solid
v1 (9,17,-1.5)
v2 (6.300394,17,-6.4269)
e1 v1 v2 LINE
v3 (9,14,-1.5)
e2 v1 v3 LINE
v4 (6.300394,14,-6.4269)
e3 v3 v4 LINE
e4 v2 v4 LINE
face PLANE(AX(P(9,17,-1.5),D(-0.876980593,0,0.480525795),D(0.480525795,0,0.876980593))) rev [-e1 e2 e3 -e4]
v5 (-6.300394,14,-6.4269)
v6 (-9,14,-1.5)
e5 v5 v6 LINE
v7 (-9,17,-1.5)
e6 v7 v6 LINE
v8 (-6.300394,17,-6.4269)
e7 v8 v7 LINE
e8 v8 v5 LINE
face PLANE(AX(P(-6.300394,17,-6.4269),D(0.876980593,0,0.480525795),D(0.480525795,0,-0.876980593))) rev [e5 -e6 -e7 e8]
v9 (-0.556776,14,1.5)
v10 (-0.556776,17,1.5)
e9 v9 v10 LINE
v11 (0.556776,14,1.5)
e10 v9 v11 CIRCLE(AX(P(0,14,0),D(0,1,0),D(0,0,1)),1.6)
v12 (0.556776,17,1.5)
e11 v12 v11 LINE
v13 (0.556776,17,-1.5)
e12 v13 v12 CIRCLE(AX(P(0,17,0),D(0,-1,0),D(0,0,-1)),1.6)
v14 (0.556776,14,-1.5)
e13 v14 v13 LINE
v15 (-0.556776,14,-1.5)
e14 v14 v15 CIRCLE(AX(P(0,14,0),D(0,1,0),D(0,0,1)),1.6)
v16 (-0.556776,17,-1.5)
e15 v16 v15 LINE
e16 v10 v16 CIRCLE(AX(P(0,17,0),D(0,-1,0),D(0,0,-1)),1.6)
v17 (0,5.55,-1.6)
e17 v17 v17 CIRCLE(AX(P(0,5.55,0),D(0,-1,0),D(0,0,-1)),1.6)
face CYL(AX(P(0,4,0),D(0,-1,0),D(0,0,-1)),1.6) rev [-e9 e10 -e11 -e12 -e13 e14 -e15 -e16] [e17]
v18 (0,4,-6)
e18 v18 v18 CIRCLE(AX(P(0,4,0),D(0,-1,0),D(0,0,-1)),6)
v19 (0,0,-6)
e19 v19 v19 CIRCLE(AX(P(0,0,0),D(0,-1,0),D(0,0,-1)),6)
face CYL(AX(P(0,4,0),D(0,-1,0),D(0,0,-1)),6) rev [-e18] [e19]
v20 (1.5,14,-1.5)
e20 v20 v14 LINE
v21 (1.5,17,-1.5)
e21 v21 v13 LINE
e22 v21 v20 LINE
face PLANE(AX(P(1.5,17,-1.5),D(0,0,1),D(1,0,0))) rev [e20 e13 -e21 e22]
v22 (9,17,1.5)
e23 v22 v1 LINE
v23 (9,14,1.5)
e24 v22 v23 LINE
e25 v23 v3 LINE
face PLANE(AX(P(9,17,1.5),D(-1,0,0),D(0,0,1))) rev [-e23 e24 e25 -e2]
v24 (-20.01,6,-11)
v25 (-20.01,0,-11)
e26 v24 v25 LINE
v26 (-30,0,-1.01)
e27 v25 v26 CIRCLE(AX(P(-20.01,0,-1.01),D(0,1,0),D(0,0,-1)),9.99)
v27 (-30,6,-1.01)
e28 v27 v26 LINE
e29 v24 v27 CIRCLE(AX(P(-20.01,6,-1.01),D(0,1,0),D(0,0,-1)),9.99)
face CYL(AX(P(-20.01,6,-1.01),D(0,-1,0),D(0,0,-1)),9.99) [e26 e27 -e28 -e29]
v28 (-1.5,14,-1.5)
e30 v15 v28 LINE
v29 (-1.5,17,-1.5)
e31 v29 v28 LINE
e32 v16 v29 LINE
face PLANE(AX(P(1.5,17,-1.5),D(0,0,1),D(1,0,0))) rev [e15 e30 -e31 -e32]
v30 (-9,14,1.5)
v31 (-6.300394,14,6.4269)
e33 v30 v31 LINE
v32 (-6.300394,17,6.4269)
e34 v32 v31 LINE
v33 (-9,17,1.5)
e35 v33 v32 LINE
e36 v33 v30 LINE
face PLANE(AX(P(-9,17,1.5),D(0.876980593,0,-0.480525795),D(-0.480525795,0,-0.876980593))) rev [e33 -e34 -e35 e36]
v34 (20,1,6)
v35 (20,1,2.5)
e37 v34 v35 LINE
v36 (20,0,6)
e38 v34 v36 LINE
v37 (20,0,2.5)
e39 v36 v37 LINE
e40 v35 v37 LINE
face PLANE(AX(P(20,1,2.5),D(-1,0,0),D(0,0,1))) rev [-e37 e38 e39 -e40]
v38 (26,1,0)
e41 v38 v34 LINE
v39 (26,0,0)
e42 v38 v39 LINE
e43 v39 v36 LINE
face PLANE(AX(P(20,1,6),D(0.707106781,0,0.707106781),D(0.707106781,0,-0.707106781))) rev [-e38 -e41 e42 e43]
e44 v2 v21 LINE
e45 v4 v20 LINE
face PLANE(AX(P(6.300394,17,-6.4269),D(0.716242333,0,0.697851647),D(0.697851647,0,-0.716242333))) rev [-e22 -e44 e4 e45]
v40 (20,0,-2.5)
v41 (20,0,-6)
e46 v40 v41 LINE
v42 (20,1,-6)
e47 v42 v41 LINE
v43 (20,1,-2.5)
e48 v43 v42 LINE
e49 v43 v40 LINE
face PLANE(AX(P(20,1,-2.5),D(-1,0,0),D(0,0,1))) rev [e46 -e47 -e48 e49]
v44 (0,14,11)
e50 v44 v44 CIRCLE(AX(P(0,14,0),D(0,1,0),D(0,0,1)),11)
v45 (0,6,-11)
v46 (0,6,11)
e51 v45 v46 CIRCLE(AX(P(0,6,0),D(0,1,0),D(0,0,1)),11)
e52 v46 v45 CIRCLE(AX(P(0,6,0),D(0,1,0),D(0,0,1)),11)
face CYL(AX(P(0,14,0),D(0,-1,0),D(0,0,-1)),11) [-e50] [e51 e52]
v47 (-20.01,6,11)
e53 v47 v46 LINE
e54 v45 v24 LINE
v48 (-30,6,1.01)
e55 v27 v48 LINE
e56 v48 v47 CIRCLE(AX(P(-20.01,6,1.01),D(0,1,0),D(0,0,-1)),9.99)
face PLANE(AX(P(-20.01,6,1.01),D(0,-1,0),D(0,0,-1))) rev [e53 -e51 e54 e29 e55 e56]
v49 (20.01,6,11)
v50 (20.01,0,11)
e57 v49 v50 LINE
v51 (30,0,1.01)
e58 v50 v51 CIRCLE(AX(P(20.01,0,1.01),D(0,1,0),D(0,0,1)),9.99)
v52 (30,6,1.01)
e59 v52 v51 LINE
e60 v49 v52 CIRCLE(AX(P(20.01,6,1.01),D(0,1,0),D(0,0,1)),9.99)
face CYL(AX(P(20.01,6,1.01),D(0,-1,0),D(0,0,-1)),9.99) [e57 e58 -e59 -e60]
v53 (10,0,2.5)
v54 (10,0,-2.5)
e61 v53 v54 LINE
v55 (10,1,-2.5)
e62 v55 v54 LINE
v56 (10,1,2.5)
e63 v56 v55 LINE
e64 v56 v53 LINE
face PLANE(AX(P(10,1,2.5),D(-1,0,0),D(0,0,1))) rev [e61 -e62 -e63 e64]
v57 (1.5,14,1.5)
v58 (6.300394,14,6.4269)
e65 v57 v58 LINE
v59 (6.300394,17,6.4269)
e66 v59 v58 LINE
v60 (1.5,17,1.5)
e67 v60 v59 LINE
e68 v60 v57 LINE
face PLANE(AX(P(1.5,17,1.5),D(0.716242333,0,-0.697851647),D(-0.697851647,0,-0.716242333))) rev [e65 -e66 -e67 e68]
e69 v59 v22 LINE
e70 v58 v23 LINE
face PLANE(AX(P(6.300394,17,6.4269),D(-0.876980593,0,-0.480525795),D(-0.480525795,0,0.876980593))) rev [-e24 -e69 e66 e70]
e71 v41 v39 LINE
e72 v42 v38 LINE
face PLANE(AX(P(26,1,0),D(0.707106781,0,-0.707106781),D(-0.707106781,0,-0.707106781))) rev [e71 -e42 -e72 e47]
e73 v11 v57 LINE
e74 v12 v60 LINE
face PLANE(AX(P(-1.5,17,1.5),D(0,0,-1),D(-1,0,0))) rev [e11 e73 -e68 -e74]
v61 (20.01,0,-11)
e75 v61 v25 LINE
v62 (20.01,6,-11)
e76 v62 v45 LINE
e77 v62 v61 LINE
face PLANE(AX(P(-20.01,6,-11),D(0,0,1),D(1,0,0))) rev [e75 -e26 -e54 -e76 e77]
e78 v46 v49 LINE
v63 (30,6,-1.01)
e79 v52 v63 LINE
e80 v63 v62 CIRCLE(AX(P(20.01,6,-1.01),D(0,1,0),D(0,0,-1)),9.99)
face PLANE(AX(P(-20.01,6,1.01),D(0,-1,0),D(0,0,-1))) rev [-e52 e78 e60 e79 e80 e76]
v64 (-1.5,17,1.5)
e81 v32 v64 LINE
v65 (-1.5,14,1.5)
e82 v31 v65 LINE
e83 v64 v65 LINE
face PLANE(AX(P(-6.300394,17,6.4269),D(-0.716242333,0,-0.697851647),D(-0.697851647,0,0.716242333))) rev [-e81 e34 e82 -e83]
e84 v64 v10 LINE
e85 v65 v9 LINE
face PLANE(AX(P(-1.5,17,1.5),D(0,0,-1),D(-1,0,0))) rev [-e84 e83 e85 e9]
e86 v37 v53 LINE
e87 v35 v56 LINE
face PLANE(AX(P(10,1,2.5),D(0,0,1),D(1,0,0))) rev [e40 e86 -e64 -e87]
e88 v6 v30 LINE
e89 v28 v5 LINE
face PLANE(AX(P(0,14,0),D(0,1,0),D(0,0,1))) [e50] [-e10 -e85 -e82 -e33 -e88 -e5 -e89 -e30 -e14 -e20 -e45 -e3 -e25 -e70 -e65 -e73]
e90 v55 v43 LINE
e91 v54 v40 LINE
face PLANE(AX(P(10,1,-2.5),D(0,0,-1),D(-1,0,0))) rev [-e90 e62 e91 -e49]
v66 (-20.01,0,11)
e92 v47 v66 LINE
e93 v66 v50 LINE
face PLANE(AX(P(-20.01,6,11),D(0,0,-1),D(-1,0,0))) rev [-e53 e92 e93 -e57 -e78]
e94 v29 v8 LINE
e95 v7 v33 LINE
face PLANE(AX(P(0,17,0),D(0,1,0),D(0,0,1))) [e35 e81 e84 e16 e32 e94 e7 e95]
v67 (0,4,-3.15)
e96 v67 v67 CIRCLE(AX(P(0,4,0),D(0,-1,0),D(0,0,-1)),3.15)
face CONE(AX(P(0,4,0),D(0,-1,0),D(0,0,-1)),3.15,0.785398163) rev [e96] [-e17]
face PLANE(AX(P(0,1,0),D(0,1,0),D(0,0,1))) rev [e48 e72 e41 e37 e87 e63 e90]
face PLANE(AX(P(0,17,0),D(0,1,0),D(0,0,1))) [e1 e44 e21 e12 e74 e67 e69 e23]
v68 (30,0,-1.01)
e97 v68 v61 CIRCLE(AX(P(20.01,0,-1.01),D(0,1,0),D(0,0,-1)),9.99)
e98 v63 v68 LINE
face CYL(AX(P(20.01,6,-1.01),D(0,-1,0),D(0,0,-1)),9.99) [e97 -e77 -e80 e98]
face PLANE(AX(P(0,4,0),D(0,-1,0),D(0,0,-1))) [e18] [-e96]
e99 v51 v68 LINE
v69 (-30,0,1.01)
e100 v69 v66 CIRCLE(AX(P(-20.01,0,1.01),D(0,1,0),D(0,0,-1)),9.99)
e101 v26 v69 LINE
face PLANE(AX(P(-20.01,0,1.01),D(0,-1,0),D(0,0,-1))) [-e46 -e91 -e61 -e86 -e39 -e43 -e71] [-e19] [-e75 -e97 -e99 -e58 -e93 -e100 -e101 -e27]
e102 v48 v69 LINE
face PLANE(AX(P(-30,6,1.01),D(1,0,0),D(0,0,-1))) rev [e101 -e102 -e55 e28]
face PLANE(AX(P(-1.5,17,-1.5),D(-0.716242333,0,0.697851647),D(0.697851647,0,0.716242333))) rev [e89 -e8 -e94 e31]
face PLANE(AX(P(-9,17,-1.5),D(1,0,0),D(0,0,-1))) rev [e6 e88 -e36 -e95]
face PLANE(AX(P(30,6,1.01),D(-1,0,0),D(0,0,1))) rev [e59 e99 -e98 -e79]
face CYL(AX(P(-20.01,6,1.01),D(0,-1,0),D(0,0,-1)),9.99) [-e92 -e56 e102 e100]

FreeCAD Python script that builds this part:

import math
import FreeCAD as App
import Part
import Sketcher
from FreeCAD import Vector
Q = App.Units.Quantity

doc = App.newDocument("Part")
body = doc.addObject("PartDesign::Body", "Body")

sketch1 = body.newObject("Sketcher::SketchObject", "Sketch")
sketch1.AttachmentSupport = (doc.getObject("XZ_Plane"), [""])
sketch1.MapMode = "FlatFace"
sketch1.addGeometry([
    Part.LineSegment(Vector(-20, 11, 0), Vector(20, 11, 0)),
    Part.ArcOfCircle(Part.Circle(Vector(20, 1, 0), Vector(0, 0, 1), 10), math.radians(0), math.radians(90)),
    Part.LineSegment(Vector(30, 1, 0), Vector(30, -1, 0)),
    Part.ArcOfCircle(Part.Circle(Vector(20, -1, 0), Vector(0, 0, 1), 10), math.radians(-90), math.radians(0)),
    Part.LineSegment(Vector(20, -11, 0), Vector(-20, -11, 0)),
    Part.ArcOfCircle(Part.Circle(Vector(-20, -1, 0), Vector(0, 0, 1), 10), math.radians(180), math.radians(270)),
    Part.LineSegment(Vector(-30, -1, 0), Vector(-30, 1, 0)),
    Part.ArcOfCircle(Part.Circle(Vector(-20, 1, 0), Vector(0, 0, 1), 10), math.radians(90), math.radians(180)),
], False)
sketch1.addConstraint([
    Sketcher.Constraint("Tangent", 0, 2, 1, 2),
    Sketcher.Constraint("Tangent", 1, 1, 2, 1),
    Sketcher.Constraint("Tangent", 2, 2, 3, 2),
    Sketcher.Constraint("Tangent", 3, 1, 4, 1),
    Sketcher.Constraint("Tangent", 4, 2, 5, 2),
    Sketcher.Constraint("Tangent", 5, 1, 6, 1),
    Sketcher.Constraint("Tangent", 6, 2, 7, 2),
    Sketcher.Constraint("Tangent", 7, 1, 0, 1),
    Sketcher.Constraint("Horizontal", 0),
    Sketcher.Constraint("Vertical", 2),
    Sketcher.Constraint("Horizontal", 4),
    Sketcher.Constraint("Vertical", 6),
    Sketcher.Constraint("Equal", 1, 3),
    Sketcher.Constraint("Equal", 3, 5),
    Sketcher.Constraint("Equal", 5, 7),
    Sketcher.Constraint("Symmetric", 1, 3, 5, 3, -1, 1),
    Sketcher.Constraint("Radius", 1, Q("9.99 mm")),
    Sketcher.Constraint("DistanceY", -1, 1, 0, 2, Q("11 mm")),
    Sketcher.Constraint("DistanceX", -1, 1, 1, 1, Q("30 mm")),
])
pad1 = body.newObject("PartDesign::Pad", "Pad")
pad1.Profile = sketch1
pad1.Length = 6
pad1.Reversed = True

sketch2 = body.newObject("Sketcher::SketchObject", "Sketch001")
sketch2.AttachmentSupport = (doc.getObject("XZ_Plane"), [""])
sketch2.MapMode = "FlatFace"
sketch2.AttachmentOffset = App.Placement(Vector(0, 0, -6), App.Rotation())
sketch2.addGeometry(Part.Circle(Vector(0, 0, 0), Vector(0, 0, 1), 11), False)
sketch2.addConstraint([
    Sketcher.Constraint("Coincident", 0, 3, -1, 1),
    Sketcher.Constraint("Diameter", 0, Q("22 mm")),
])
pad2 = body.newObject("PartDesign::Pad", "Pad001")
pad2.Profile = sketch2
pad2.Length = 8
pad2.Reversed = True

sketch3 = body.newObject("Sketcher::SketchObject", "Sketch002")
sketch3.AttachmentSupport = (doc.getObject("XZ_Plane"), [""])
sketch3.MapMode = "FlatFace"
sketch3.addGeometry(Part.Circle(Vector(0, 0, 0), Vector(0, 0, 1), 6), False)
sketch3.addConstraint([
    Sketcher.Constraint("Coincident", 0, 3, -1, 1),
    Sketcher.Constraint("Diameter", 0, Q("12 mm")),
])
pocket1 = body.newObject("PartDesign::Pocket", "Pocket")
pocket1.Profile = sketch3
pocket1.Length = 4

sketch4 = body.newObject("Sketcher::SketchObject", "Sketch003")
sketch4.AttachmentSupport = (doc.getObject("XZ_Plane"), [""])
sketch4.MapMode = "FlatFace"
sketch4.AttachmentOffset = App.Placement(Vector(0, 0, -14), App.Rotation())
sketch4.addGeometry([
    Part.LineSegment(Vector(-6.3, -6.4, 0), Vector(-9, -1.5, 0)),
    Part.LineSegment(Vector(-9, -1.5, 0), Vector(-9, 1.5, 0)),
    Part.LineSegment(Vector(-9, 1.5, 0), Vector(-6.3, 6.4, 0)),
    Part.LineSegment(Vector(-6.3, 6.4, 0), Vector(-1.5, 1.5, 0)),
    Part.LineSegment(Vector(-1.5, 1.5, 0), Vector(1.5, 1.5, 0)),
    Part.LineSegment(Vector(1.5, 1.5, 0), Vector(6.3, 6.4, 0)),
    Part.LineSegment(Vector(6.3, 6.4, 0), Vector(9, 1.5, 0)),
    Part.LineSegment(Vector(9, 1.5, 0), Vector(9, -1.5, 0)),
    Part.LineSegment(Vector(9, -1.5, 0), Vector(6.3, -6.4, 0)),
    Part.LineSegment(Vector(6.3, -6.4, 0), Vector(1.5, -1.5, 0)),
    Part.LineSegment(Vector(1.5, -1.5, 0), Vector(-1.5, -1.5, 0)),
    Part.LineSegment(Vector(-1.5, -1.5, 0), Vector(-6.3, -6.4, 0)),
], False)
sketch4.addConstraint([
    Sketcher.Constraint("Coincident", 0, 2, 1, 1),
    Sketcher.Constraint("Coincident", 1, 2, 2, 1),
    Sketcher.Constraint("Coincident", 2, 2, 3, 1),
    Sketcher.Constraint("Coincident", 3, 2, 4, 1),
    Sketcher.Constraint("Coincident", 4, 2, 5, 1),
    Sketcher.Constraint("Coincident", 5, 2, 6, 1),
    Sketcher.Constraint("Coincident", 6, 2, 7, 1),
    Sketcher.Constraint("Coincident", 7, 2, 8, 1),
    Sketcher.Constraint("Coincident", 8, 2, 9, 1),
    Sketcher.Constraint("Coincident", 9, 2, 10, 1),
    Sketcher.Constraint("Coincident", 10, 2, 11, 1),
    Sketcher.Constraint("Coincident", 11, 2, 0, 1),
    Sketcher.Constraint("Vertical", 1),
    Sketcher.Constraint("Horizontal", 4),
    Sketcher.Constraint("Vertical", 7),
    Sketcher.Constraint("Horizontal", 10),
    Sketcher.Constraint("Symmetric", 0, 2, 6, 2, -1, 1),
    Sketcher.Constraint("Symmetric", 2, 2, 8, 2, -1, 1),
    Sketcher.Constraint("Symmetric", 3, 2, 9, 2, -1, 1),
    Sketcher.Constraint("Symmetric", 5, 2, 11, 2, -1, 1),
    Sketcher.Constraint("Symmetric", 2, 2, 5, 2, -2),
    Sketcher.Constraint("Parallel", 2, 8),
    Sketcher.Constraint("Parallel", 5, 11),
    Sketcher.Constraint("Horizontal", 1, 2, 3, 2),
    Sketcher.Constraint("Horizontal", 4, 2, 6, 2),
    Sketcher.Constraint("Vertical", 4, 2, 9, 2),
    Sketcher.Constraint("Equal", 10, 1),
    Sketcher.Constraint("DistanceX", 4, 1, 4, 2, Q("3 mm")),
    Sketcher.Constraint("DistanceX", 0, 2, -1, 1, Q("9 mm")),
    Sketcher.Constraint("DistanceY", -1, 1, 2, 2, Q("6.4269 mm")),
    Sketcher.Constraint("Distance", 0, Q("5.618026 mm")),
])
pad3 = body.newObject("PartDesign::Pad", "Pad002")
pad3.Profile = sketch4
pad3.Length = 3
pad3.Reversed = True

sketch5 = body.newObject("Sketcher::SketchObject", "Sketch004")
sketch5.AttachmentSupport = (doc.getObject("XZ_Plane"), [""])
sketch5.MapMode = "FlatFace"
sketch5.AttachmentOffset = App.Placement(Vector(0, 0, -4), App.Rotation())
sketch5.addGeometry(Part.Circle(Vector(0, 0, 0), Vector(0, 0, 1), 1.6), False)
sketch5.addConstraint([
    Sketcher.Constraint("Coincident", 0, 3, -1, 1),
    Sketcher.Constraint("Diameter", 0, Q("3.2 mm")),
])
doc.recompute()
hole = body.newObject("PartDesign::Hole", "Hole")
hole.Profile = sketch5
hole.ThreadType = "None"
hole.Diameter = 3.2
hole.DepthType = "ThroughAll"
hole.HoleCutType = "Countersink"
hole.HoleCutDiameter = 6.3
hole.HoleCutCountersinkAngle = 90

sketch6 = body.newObject("Sketcher::SketchObject", "Sketch005")
sketch6.AttachmentSupport = (doc.getObject("XZ_Plane"), [""])
sketch6.MapMode = "FlatFace"
sketch6.addGeometry([
    Part.LineSegment(Vector(10, 2.5, 0), Vector(10, -2.5, 0)),
    Part.LineSegment(Vector(10, -2.5, 0), Vector(20, -2.5, 0)),
    Part.LineSegment(Vector(20, -2.5, 0), Vector(20, -6, 0)),
    Part.LineSegment(Vector(20, -6, 0), Vector(26, 0, 0)),
    Part.LineSegment(Vector(26, 0, 0), Vector(20, 6, 0)),
    Part.LineSegment(Vector(20, 6, 0), Vector(20, 2.5, 0)),
    Part.LineSegment(Vector(20, 2.5, 0), Vector(10, 2.5, 0)),
], False)
sketch6.addConstraint([
    Sketcher.Constraint("Coincident", 0, 2, 1, 1),
    Sketcher.Constraint("Coincident", 1, 2, 2, 1),
    Sketcher.Constraint("Coincident", 2, 2, 3, 1),
    Sketcher.Constraint("Coincident", 3, 2, 4, 1),
    Sketcher.Constraint("Coincident", 4, 2, 5, 1),
    Sketcher.Constraint("Coincident", 5, 2, 6, 1),
    Sketcher.Constraint("Coincident", 6, 2, 0, 1),
    Sketcher.Constraint("Vertical", 0),
    Sketcher.Constraint("Horizontal", 1),
    Sketcher.Constraint("Vertical", 2),
    Sketcher.Constraint("Vertical", 5),
    Sketcher.Constraint("Horizontal", 6),
    Sketcher.Constraint("Symmetric", 2, 2, 4, 2, -1),
    Sketcher.Constraint("PointOnObject", 3, 2, -1),
    Sketcher.Constraint("Perpendicular", 3, 4),
    Sketcher.Constraint("Equal", 2, 5),
    Sketcher.Constraint("DistanceX", 1, 1, 1, 2, Q("10 mm")),
    Sketcher.Constraint("DistanceY", 0, 2, 0, 1, Q("5 mm")),
    Sketcher.Constraint("DistanceY", 2, 2, 2, 1, Q("3.5 mm")),
    Sketcher.Constraint("DistanceX", -1, 1, 0, 2, Q("10 mm")),
])
pocket2 = body.newObject("PartDesign::Pocket", "Pocket001")
pocket2.Profile = sketch6
pocket2.Length = 1

doc.recompute()
